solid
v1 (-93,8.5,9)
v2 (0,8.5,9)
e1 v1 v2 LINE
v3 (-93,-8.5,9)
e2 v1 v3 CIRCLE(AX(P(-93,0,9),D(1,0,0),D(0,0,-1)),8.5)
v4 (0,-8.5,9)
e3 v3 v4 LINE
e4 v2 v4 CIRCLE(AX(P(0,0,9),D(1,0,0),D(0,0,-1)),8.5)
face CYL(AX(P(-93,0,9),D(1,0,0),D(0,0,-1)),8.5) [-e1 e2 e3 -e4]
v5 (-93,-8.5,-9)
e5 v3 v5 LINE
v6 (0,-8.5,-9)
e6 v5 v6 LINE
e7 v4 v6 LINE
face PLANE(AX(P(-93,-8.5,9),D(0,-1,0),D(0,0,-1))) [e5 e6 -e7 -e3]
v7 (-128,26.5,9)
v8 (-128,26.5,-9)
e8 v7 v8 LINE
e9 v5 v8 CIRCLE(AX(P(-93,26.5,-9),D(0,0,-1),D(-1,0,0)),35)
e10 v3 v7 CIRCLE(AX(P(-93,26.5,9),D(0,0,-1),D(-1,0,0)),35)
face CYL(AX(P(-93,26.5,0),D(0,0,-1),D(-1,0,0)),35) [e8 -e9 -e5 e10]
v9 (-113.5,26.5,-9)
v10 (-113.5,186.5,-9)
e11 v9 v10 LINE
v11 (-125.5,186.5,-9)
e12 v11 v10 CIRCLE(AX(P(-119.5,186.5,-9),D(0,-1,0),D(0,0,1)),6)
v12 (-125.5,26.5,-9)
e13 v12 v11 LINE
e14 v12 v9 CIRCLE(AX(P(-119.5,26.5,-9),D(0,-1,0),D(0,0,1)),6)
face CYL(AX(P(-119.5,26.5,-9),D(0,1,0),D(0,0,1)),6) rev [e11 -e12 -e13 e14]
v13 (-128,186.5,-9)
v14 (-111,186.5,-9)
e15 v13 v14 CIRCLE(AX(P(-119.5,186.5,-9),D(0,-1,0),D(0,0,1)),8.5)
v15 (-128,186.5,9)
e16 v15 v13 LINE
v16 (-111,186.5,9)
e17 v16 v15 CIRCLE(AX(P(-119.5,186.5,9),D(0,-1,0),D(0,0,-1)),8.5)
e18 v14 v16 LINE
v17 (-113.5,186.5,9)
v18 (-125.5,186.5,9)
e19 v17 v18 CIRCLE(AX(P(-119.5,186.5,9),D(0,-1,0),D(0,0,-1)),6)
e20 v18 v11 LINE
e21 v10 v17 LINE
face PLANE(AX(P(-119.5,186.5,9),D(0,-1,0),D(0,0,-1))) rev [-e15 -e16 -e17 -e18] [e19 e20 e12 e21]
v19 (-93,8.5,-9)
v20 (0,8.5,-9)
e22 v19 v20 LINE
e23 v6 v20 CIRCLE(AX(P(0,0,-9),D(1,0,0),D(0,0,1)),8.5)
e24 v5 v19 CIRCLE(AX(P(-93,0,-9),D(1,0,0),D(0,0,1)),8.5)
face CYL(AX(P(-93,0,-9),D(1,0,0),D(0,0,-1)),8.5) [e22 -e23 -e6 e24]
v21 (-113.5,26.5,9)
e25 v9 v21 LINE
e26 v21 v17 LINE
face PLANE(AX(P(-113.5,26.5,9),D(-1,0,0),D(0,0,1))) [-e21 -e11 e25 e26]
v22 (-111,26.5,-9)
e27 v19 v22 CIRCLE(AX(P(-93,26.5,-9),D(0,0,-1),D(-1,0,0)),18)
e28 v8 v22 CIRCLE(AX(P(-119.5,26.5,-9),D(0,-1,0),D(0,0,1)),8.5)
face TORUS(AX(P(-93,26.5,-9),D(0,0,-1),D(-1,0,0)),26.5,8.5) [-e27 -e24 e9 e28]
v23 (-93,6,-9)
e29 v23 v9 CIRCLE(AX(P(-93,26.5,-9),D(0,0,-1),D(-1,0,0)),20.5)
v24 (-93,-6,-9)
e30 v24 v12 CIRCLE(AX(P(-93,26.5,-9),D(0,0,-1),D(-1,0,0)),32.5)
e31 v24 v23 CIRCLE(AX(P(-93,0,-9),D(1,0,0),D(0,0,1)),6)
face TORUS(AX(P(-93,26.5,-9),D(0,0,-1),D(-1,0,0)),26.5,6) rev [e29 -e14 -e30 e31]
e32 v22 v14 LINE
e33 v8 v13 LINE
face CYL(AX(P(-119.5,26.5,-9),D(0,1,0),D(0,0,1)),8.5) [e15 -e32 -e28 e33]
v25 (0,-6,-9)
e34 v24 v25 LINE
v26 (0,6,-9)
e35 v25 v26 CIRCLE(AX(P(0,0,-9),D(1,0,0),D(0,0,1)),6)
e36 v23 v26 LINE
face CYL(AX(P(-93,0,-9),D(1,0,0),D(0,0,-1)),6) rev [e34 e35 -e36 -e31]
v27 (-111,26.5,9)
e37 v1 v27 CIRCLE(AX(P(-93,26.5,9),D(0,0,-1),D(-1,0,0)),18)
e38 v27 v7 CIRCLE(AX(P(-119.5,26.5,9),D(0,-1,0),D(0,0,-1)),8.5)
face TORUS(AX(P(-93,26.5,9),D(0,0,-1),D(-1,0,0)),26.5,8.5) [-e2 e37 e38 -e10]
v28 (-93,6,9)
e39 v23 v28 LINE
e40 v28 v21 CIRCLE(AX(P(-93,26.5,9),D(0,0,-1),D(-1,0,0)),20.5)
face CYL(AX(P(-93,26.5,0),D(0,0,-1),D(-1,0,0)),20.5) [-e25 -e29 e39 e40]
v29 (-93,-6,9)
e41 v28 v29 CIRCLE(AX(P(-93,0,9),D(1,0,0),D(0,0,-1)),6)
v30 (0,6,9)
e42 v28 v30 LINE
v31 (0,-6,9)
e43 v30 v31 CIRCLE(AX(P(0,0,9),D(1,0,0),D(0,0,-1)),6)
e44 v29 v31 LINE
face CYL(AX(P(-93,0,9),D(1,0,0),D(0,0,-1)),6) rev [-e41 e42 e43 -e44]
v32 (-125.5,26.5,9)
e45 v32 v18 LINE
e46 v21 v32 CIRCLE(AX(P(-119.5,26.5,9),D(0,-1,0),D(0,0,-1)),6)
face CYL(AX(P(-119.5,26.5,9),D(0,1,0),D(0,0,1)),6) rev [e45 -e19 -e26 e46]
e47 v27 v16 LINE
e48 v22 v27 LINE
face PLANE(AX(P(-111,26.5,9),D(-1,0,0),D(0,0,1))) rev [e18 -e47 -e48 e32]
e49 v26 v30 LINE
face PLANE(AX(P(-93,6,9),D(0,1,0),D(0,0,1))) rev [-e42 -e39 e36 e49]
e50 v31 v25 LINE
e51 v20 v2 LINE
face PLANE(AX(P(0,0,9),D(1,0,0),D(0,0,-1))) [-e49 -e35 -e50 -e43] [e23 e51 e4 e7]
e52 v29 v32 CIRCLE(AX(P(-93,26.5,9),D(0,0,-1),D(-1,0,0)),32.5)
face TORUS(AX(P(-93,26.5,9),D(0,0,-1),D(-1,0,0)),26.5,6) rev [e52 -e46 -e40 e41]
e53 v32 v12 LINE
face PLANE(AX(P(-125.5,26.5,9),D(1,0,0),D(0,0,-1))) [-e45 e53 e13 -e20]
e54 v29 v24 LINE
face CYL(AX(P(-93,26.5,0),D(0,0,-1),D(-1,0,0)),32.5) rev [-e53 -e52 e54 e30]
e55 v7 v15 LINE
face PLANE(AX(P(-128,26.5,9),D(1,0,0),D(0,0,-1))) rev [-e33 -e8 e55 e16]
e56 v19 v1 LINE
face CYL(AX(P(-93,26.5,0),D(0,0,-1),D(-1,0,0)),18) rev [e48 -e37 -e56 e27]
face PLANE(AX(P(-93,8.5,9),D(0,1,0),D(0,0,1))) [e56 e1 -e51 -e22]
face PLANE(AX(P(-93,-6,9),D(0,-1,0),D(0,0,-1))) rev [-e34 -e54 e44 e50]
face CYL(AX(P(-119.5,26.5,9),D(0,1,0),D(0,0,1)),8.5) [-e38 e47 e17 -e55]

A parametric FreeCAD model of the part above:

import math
import FreeCAD as App
import Part
import Sketcher
from FreeCAD import Vector
Q = App.Units.Quantity

doc = App.newDocument("Part")
body = doc.addObject("PartDesign::Body", "Body")

# Sketch on YZ plane
sketch1 = body.newObject("Sketcher::SketchObject", "Sketch")
sketch1.AttachmentSupport = (doc.getObject("YZ_Plane"), [""])
sketch1.MapMode = "FlatFace"
sketch1.addGeometry([
    Part.LineSegment(Vector(-8.5, 9, 0), Vector(-8.5, -9, 0)),  # 0
    Part.ArcOfCircle(Part.Circle(Vector(0, -9, 0), Vector(0, 0, 1), 8.5), math.radians(180), math.radians(360)),  # 1
    Part.LineSegment(Vector(8.5, -9, 0), Vector(8.5, 9, 0)),  # 2
    Part.ArcOfCircle(Part.Circle(Vector(0, 9, 0), Vector(0, 0, 1), 8.5), math.radians(0), math.radians(180)),  # 3
    Part.ArcOfCircle(Part.Circle(Vector(0, 9, 0), Vector(0, 0, 1), 6), math.radians(0), math.radians(180)),  # 4
    Part.LineSegment(Vector(6, 9, 0), Vector(6, -9, 0)),  # 5
    Part.ArcOfCircle(Part.Circle(Vector(0, -9, 0), Vector(0, 0, 1), 6), math.radians(180), math.radians(360)),  # 6
    Part.LineSegment(Vector(-6, -9, 0), Vector(-6, 9, 0)),  # 7
], False)
sketch1.addConstraint([
    Sketcher.Constraint("Tangent", 0, 2, 1, 1),
    Sketcher.Constraint("Tangent", 1, 2, 2, 1),
    Sketcher.Constraint("Tangent", 2, 2, 3, 1),
    Sketcher.Constraint("Tangent", 3, 2, 0, 1),
    Sketcher.Constraint("Tangent", 4, 1, 5, 1),
    Sketcher.Constraint("Tangent", 5, 2, 6, 2),
    Sketcher.Constraint("Tangent", 6, 1, 7, 1),
    Sketcher.Constraint("Tangent", 7, 2, 4, 2),
    Sketcher.Constraint("Vertical", 0),
    Sketcher.Constraint("Vertical", 2),
    Sketcher.Constraint("Vertical", 5),
    Sketcher.Constraint("Vertical", 7),
    Sketcher.Constraint("Coincident", 4, 3, 3, 3),
    Sketcher.Constraint("Symmetric", 1, 3, 3, 3, -1, 1),
    Sketcher.Constraint("Horizontal", 6, 3, 0, 2),
    Sketcher.Constraint("Radius", 4, Q("6 mm")),
    Sketcher.Constraint("Radius", 1, Q("8.5 mm")),
    Sketcher.Constraint("DistanceY", 0, 2, 0, 1, Q("18 mm")),
])

# Sketch on XY plane
sketch2 = body.newObject("Sketcher::SketchObject", "Sketch001")
sketch2.AttachmentSupport = (doc.getObject("XY_Plane"), [""])
sketch2.MapMode = "FlatFace"
sketch2.addGeometry([
    Part.LineSegment(Vector(-128, 186.5, 0), Vector(-128, 26.5, 0)),
    Part.ArcOfCircle(Part.Circle(Vector(-93, 26.5, 0), Vector(0, 0, 1), 35), math.radians(180), math.radians(270)),
    Part.LineSegment(Vector(-93, -8.5, 0), Vector(0, -8.5, 0)),
], False)
sketch2.addConstraint([
    Sketcher.Constraint("Tangent", 0, 2, 1, 1),
    Sketcher.Constraint("Tangent", 1, 2, 2, 1),
    Sketcher.Constraint("Vertical", 0),
    Sketcher.Constraint("Horizontal", 2),
    Sketcher.Constraint("PointOnObject", 2, 2, -2),
    Sketcher.Constraint("Radius", 1, Q("35 mm")),
    Sketcher.Constraint("DistanceX", 2, 1, 2, 2, Q("93 mm")),
    Sketcher.Constraint("DistanceY", 0, 2, 0, 1, Q("160 mm")),
    Sketcher.Constraint("DistanceY", -1, 1, 1, 3, Q("26.5 mm")),
])
doc.recompute()

additivepipe = body.newObject("PartDesign::AdditivePipe", "AdditivePipe")
additivepipe.Profile = sketch1
additivepipe.Spine = (sketch2, ["Edge1", "Edge2", "Edge3"])

doc.recompute()
